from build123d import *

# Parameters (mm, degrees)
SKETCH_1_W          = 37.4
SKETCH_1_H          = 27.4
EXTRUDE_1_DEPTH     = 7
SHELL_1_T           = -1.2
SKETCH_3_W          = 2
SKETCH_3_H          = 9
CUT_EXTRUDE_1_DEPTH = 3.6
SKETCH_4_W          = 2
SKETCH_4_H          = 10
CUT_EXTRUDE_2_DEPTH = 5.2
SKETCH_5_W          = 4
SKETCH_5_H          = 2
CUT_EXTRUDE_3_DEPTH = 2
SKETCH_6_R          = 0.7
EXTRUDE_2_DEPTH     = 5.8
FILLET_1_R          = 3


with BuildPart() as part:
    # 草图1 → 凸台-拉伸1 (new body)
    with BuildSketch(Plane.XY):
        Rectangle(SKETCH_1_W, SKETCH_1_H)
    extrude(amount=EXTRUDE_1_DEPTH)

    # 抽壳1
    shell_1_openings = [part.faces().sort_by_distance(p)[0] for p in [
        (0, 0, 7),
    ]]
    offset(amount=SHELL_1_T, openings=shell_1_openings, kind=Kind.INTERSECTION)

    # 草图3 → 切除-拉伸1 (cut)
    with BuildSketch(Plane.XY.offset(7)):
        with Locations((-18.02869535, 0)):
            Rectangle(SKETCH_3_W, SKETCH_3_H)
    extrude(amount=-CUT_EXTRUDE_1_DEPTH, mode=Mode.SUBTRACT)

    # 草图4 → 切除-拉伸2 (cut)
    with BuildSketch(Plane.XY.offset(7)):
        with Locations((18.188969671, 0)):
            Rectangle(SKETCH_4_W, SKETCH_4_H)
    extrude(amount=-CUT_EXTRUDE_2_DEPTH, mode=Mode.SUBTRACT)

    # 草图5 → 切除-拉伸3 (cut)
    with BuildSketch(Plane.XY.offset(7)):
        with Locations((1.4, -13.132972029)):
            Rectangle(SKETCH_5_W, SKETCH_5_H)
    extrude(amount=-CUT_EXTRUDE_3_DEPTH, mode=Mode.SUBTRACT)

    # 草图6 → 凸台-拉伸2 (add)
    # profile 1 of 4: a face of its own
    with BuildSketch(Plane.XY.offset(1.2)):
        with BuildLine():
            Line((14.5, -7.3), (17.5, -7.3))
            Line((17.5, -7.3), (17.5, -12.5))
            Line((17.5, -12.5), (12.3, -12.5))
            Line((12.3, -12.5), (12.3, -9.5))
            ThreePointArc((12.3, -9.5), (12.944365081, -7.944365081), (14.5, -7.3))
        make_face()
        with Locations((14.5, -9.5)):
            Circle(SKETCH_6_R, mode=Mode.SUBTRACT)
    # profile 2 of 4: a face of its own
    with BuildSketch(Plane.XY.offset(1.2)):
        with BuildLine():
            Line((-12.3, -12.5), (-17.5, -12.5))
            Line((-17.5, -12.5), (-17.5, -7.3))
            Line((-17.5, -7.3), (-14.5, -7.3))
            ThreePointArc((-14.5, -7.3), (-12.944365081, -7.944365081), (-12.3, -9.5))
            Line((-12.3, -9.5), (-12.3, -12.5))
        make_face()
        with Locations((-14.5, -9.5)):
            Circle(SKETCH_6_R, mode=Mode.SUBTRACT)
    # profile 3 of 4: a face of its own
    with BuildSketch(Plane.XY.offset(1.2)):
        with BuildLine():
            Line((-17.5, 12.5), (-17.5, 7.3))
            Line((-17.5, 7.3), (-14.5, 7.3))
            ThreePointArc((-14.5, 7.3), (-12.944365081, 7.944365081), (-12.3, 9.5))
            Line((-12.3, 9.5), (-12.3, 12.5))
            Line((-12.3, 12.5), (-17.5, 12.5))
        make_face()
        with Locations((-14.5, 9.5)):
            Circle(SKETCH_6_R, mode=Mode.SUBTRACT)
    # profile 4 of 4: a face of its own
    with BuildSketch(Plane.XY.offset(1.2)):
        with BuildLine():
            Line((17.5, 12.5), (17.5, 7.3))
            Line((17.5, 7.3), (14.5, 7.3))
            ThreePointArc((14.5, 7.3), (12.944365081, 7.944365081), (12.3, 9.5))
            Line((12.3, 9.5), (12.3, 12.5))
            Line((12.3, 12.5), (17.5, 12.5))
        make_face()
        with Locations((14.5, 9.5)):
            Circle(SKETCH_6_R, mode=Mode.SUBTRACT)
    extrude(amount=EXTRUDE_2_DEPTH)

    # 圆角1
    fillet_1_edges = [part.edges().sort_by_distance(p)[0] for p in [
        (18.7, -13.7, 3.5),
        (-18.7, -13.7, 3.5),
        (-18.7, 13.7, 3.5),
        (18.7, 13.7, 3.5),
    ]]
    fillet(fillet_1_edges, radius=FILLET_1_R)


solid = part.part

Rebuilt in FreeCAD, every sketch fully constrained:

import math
import FreeCAD as App
import Part
import Sketcher


def edges_at(feature, points):
    """Names of the edges that pass closest to the given points."""
    edges = feature.Shape.Edges
    near = lambda p: min(range(len(edges)), key=lambda i: edges[i].distToShape(Part.Vertex(*p))[0])
    return sorted({f"Edge{near(p) + 1}" for p in points})


def faces_at(feature, points):
    """Names of the faces that lie closest to the given points."""
    faces = feature.Shape.Faces
    near = lambda p: min(range(len(faces)), key=lambda i: faces[i].distToShape(Part.Vertex(*p))[0])
    return sorted({f"Face{near(p) + 1}" for p in points})

doc = App.newDocument("Part")
body = doc.addObject("PartDesign::Body", "Body")

# Sketch on XY plane
sketch1 = body.newObject("Sketcher::SketchObject", "Sketch")
sketch1.AttachmentSupport = (doc.getObject("XY_Plane"), [""])
sketch1.MapMode = "FlatFace"
sketch1.addGeometry([
    Part.LineSegment(App.Vector(-19, 14, 0), App.Vector(-19, -14, 0)),
    Part.LineSegment(App.Vector(-19, -14, 0), App.Vector(19, -14, 0)),
    Part.LineSegment(App.Vector(19, -14, 0), App.Vector(19, 14, 0)),
    Part.LineSegment(App.Vector(19, 14, 0), App.Vector(-19, 14, 0)),
], False)
sketch1.addConstraint([
    Sketcher.Constraint("Coincident", 0, 2, 1, 1),
    Sketcher.Constraint("Coincident", 1, 2, 2, 1),
    Sketcher.Constraint("Coincident", 2, 2, 3, 1),
    Sketcher.Constraint("Coincident", 3, 2, 0, 1),
    Sketcher.Constraint("Vertical", 0),
    Sketcher.Constraint("Horizontal", 1),
    Sketcher.Constraint("Vertical", 2),
    Sketcher.Constraint("Horizontal", 3),
    Sketcher.Constraint("Symmetric", 0, 2, 2, 2, -1, 1),
    Sketcher.Constraint("DistanceX", 1, 1, 1, 2, 37.4),
    Sketcher.Constraint("DistanceY", 0, 2, 0, 1, 27.4),
])
pad1 = body.newObject("PartDesign::Pad", "Pad")
pad1.Profile = sketch1
pad1.Length = 7
doc.recompute()

thickness = body.newObject("PartDesign::Thickness", "Thickness")
thickness.Base = (pad1, faces_at(pad1, [(0, 0, 7)]))
thickness.Value = 1.2
thickness.Reversed = True
thickness.Join = "Intersection"

# Sketch on XY plane
sketch2 = body.newObject("Sketcher::SketchObject", "Sketch001")
sketch2.AttachmentSupport = (doc.getObject("XY_Plane"), [""])
sketch2.MapMode = "FlatFace"
sketch2.AttachmentOffset = App.Placement(App.Vector(0, 0, 7), App.Rotation())
sketch2.addGeometry([
    Part.LineSegment(App.Vector(-19, 4.5, 0), App.Vector(-19, -4.5, 0)),
    Part.LineSegment(App.Vector(-19, -4.5, 0), App.Vector(-17, -4.5, 0)),
    Part.LineSegment(App.Vector(-17, -4.5, 0), App.Vector(-17, 4.5, 0)),
    Part.LineSegment(App.Vector(-17, 4.5, 0), App.Vector(-19, 4.5, 0)),
], False)
sketch2.addConstraint([
    Sketcher.Constraint("Coincident", 0, 2, 1, 1),
    Sketcher.Constraint("Coincident", 1, 2, 2, 1),
    Sketcher.Constraint("Coincident", 2, 2, 3, 1),
    Sketcher.Constraint("Coincident", 3, 2, 0, 1),
    Sketcher.Constraint("Vertical", 0),
    Sketcher.Constraint("Horizontal", 1),
    Sketcher.Constraint("Vertical", 2),
    Sketcher.Constraint("Horizontal", 3),
    Sketcher.Constraint("DistanceX", 1, 1, 1, 2, 2.0),
    Sketcher.Constraint("DistanceY", 0, 2, 0, 1, 9.0),
    Sketcher.Constraint("DistanceY", 0, 2, -1, 1, 4.5),
    Sketcher.Constraint("DistanceX", 0, 2, -1, 1, 19.028695),
])
pocket1 = body.newObject("PartDesign::Pocket", "Pocket")
pocket1.Profile = sketch2
pocket1.Length = 3.6

# Sketch on XY plane
sketch3 = body.newObject("Sketcher::SketchObject", "Sketch002")
sketch3.AttachmentSupport = (doc.getObject("XY_Plane"), [""])
sketch3.MapMode = "FlatFace"
sketch3.AttachmentOffset = App.Placement(App.Vector(0, 0, 7), App.Rotation())
sketch3.addGeometry([
    Part.LineSegment(App.Vector(17.2, 5, 0), App.Vector(17.2, -5, 0)),
    Part.LineSegment(App.Vector(17.2, -5, 0), App.Vector(19.2, -5, 0)),
    Part.LineSegment(App.Vector(19.2, -5, 0), App.Vector(19.2, 5, 0)),
    Part.LineSegment(App.Vector(19.2, 5, 0), App.Vector(17.2, 5, 0)),
], False)
sketch3.addConstraint([
    Sketcher.Constraint("Coincident", 0, 2, 1, 1),
    Sketcher.Constraint("Coincident", 1, 2, 2, 1),
    Sketcher.Constraint("Coincident", 2, 2, 3, 1),
    Sketcher.Constraint("Coincident", 3, 2, 0, 1),
    Sketcher.Constraint("Vertical", 0),
    Sketcher.Constraint("Horizontal", 1),
    Sketcher.Constraint("Vertical", 2),
    Sketcher.Constraint("Horizontal", 3),
    Sketcher.Constraint("DistanceX", 1, 1, 1, 2, 2.0),
    Sketcher.Constraint("DistanceY", 0, 2, 0, 1, 10.0),
    Sketcher.Constraint("DistanceY", 0, 2, -1, 1, 5.0),
    Sketcher.Constraint("DistanceX", -1, 1, 0, 2, 17.18897),
])
pocket2 = body.newObject("PartDesign::Pocket", "Pocket001")
pocket2.Profile = sketch3
pocket2.Length = 5.2

# Sketch on XY plane
sketch4 = body.newObject("Sketcher::SketchObject", "Sketch003")
sketch4.AttachmentSupport = (doc.getObject("XY_Plane"), [""])
sketch4.MapMode = "FlatFace"
sketch4.AttachmentOffset = App.Placement(App.Vector(0, 0, 7), App.Rotation())
sketch4.addGeometry([
    Part.LineSegment(App.Vector(-0.6, -12.1, 0), App.Vector(-0.6, -14.1, 0)),
    Part.LineSegment(App.Vector(-0.6, -14.1, 0), App.Vector(3.4, -14.1, 0)),
    Part.LineSegment(App.Vector(3.4, -14.1, 0), App.Vector(3.4, -12.1, 0)),
    Part.LineSegment(App.Vector(3.4, -12.1, 0), App.Vector(-0.6, -12.1, 0)),
], False)
sketch4.addConstraint([
    Sketcher.Constraint("Coincident", 0, 2, 1, 1),
    Sketcher.Constraint("Coincident", 1, 2, 2, 1),
    Sketcher.Constraint("Coincident", 2, 2, 3, 1),
    Sketcher.Constraint("Coincident", 3, 2, 0, 1),
    Sketcher.Constraint("Vertical", 0),
    Sketcher.Constraint("Horizontal", 1),
    Sketcher.Constraint("Vertical", 2),
    Sketcher.Constraint("Horizontal", 3),
    Sketcher.Constraint("DistanceX", 1, 1, 1, 2, 4.0),
    Sketcher.Constraint("DistanceY", 0, 2, 0, 1, 2.0),
    Sketcher.Constraint("DistanceX", 0, 2, -1, 1, 0.6),
    Sketcher.Constraint("DistanceY", 0, 2, -1, 1, 14.132972),
])
pocket3 = body.newObject("PartDesign::Pocket", "Pocket002")
pocket3.Profile = sketch4
pocket3.Length = 2

# Sketch on XY plane
sketch5 = body.newObject("Sketcher::SketchObject", "Sketch004")
sketch5.AttachmentSupport = (doc.getObject("XY_Plane"), [""])
sketch5.MapMode = "FlatFace"
sketch5.AttachmentOffset = App.Placement(App.Vector(0, 0, 1.2), App.Rotation())
sketch5.addGeometry([
    Part.LineSegment(App.Vector(17.5, -7.3, 0), App.Vector(14.5, -7.3, 0)),  # 0
    Part.ArcOfCircle(Part.Circle(App.Vector(14.5, -9.5, 0), App.Vector(0, 0, 1), 2.2), math.radians(90), math.radians(180)),  # 1
    Part.LineSegment(App.Vector(12.3, -9.5, 0), App.Vector(12.3, -12.5, 0)),  # 2
    Part.LineSegment(App.Vector(12.3, -12.5, 0), App.Vector(17.5, -12.5, 0)),  # 3
    Part.LineSegment(App.Vector(17.5, -12.5, 0), App.Vector(17.5, -7.3, 0)),  # 4
    Part.Circle(App.Vector(14.5, -9.5, 0), App.Vector(0, 0, 1), 0.7),  # 5
    Part.LineSegment(App.Vector(-17.5, -12.5, 0), App.Vector(-12.3, -12.5, 0)),  # 6
    Part.LineSegment(App.Vector(-12.3, -12.5, 0), App.Vector(-12.3, -9.5, 0)),  # 7
    Part.ArcOfCircle(Part.Circle(App.Vector(-14.5, -9.5, 0), App.Vector(0, 0, 1), 2.2), math.radians(0), math.radians(90)),  # 8
    Part.LineSegment(App.Vector(-14.5, -7.3, 0), App.Vector(-17.5, -7.3, 0)),  # 9
    Part.LineSegment(App.Vector(-17.5, -7.3, 0), App.Vector(-17.5, -12.5, 0)),  # 10
    Part.Circle(App.Vector(-14.5, -9.5, 0), App.Vector(0, 0, 1), 0.7),  # 11
    Part.LineSegment(App.Vector(-17.5, 12.5, 0), App.Vector(-17.5, 7.3, 0)),  # 12
    Part.LineSegment(App.Vector(-17.5, 7.3, 0), App.Vector(-14.5, 7.3, 0)),  # 13
    Part.ArcOfCircle(Part.Circle(App.Vector(-14.5, 9.5, 0), App.Vector(0, 0, 1), 2.2), math.radians(-90), math.radians(0)),  # 14
    Part.LineSegment(App.Vector(-12.3, 9.5, 0), App.Vector(-12.3, 12.5, 0)),  # 15
    Part.LineSegment(App.Vector(-12.3, 12.5, 0), App.Vector(-17.5, 12.5, 0)),  # 16
    Part.Circle(App.Vector(-14.5, 9.5, 0), App.Vector(0, 0, 1), 0.7),  # 17
    Part.LineSegment(App.Vector(17.5, 7.3, 0), App.Vector(17.5, 12.5, 0)),  # 18
    Part.LineSegment(App.Vector(17.5, 12.5, 0), App.Vector(12.3, 12.5, 0)),  # 19
    Part.LineSegment(App.Vector(12.3, 12.5, 0), App.Vector(12.3, 9.5, 0)),  # 20
    Part.ArcOfCircle(Part.Circle(App.Vector(14.5, 9.5, 0), App.Vector(0, 0, 1), 2.2), math.radians(180), math.radians(270)),  # 21
    Part.LineSegment(App.Vector(14.5, 7.3, 0), App.Vector(17.5, 7.3, 0)),  # 22
    Part.Circle(App.Vector(14.5, 9.5, 0), App.Vector(0, 0, 1), 0.7),  # 23
], False)
sketch5.addConstraint([
    Sketcher.Constraint("Tangent", 0, 2, 1, 1),
    Sketcher.Constraint("Tangent", 1, 2, 2, 1),
    Sketcher.Constraint("Coincident", 2, 2, 3, 1),
    Sketcher.Constraint("Coincident", 3, 2, 4, 1),
    Sketcher.Constraint("Coincident", 4, 2, 0, 1),
    Sketcher.Constraint("Coincident", 6, 2, 7, 1),
    Sketcher.Constraint("Tangent", 7, 2, 8, 1),
    Sketcher.Constraint("Tangent", 8, 2, 9, 1),
    Sketcher.Constraint("Coincident", 9, 2, 10, 1),
    Sketcher.Constraint("Coincident", 10, 2, 6, 1),
    Sketcher.Constraint("Coincident", 12, 2, 13, 1),
    Sketcher.Constraint("Tangent", 13, 2, 14, 1),
    Sketcher.Constraint("Tangent", 14, 2, 15, 1),
    Sketcher.Constraint("Coincident", 15, 2, 16, 1),
    Sketcher.Constraint("Coincident", 16, 2, 12, 1),
    Sketcher.Constraint("Coincident", 18, 2, 19, 1),
    Sketcher.Constraint("Coincident", 19, 2, 20, 1),
    Sketcher.Constraint("Tangent", 20, 2, 21, 1),
    Sketcher.Constraint("Tangent", 21, 2, 22, 1),
    Sketcher.Constraint("Coincident", 22, 2, 18, 1),
    Sketcher.Constraint("Horizontal", 0),
    Sketcher.Constraint("Vertical", 2),
    Sketcher.Constraint("Horizontal", 3),
    Sketcher.Constraint("Vertical", 4),
    Sketcher.Constraint("Horizontal", 6),
    Sketcher.Constraint("Vertical", 7),
    Sketcher.Constraint("Horizontal", 9),
    Sketcher.Constraint("Vertical", 10),
    Sketcher.Constraint("Vertical", 12),
    Sketcher.Constraint("Horizontal", 13),
    Sketcher.Constraint("Vertical", 15),
    Sketcher.Constraint("Horizontal", 16),
    Sketcher.Constraint("Vertical", 18),
    Sketcher.Constraint("Horizontal", 19),
    Sketcher.Constraint("Vertical", 20),
    Sketcher.Constraint("Horizontal", 22),
    Sketcher.Constraint("Coincident", 5, 3, 1, 3),
    Sketcher.Constraint("Coincident", 11, 3, 8, 3),
    Sketcher.Constraint("Coincident", 17, 3, 14, 3),
    Sketcher.Constraint("Coincident", 23, 3, 21, 3),
    Sketcher.Constraint("Equal", 1, 8),
    Sketcher.Constraint("Equal", 5, 11),
    Sketcher.Constraint("Equal", 8, 14),
    Sketcher.Constraint("Equal", 11, 17),
    Sketcher.Constraint("Equal", 14, 21),
    Sketcher.Constraint("Equal", 17, 23),
    Sketcher.Constraint("Symmetric", 1, 3, 14, 3, -1, 1),
    Sketcher.Constraint("Symmetric", 8, 3, 21, 3, -1, 1),
    Sketcher.Constraint("Symmetric", 3, 2, 16, 2, -1, 1),
    Sketcher.Constraint("Symmetric", 10, 2, 18, 2, -1, 1),
    Sketcher.Constraint("Symmetric", 1, 3, 8, 3, -2),
    Sketcher.Constraint("Symmetric", 3, 2, 10, 2, -2),
    Sketcher.Constraint("Equal", 22, 2),
    Sketcher.Constraint("Diameter", 5, 1.4),
    Sketcher.Constraint("Radius", 1, 2.2),
    Sketcher.Constraint("DistanceX", 0, 2, 0, 1, 3.0),
    Sketcher.Constraint("DistanceX", 8, 3, 1, 3, 29.0),
    Sketcher.Constraint("DistanceY", 8, 3, 14, 3, 19.0),
])
pad2 = body.newObject("PartDesign::Pad", "Pad001")
pad2.Profile = sketch5
pad2.Length = 5.8
doc.recompute()

fillet = body.newObject("PartDesign::Fillet", "Fillet")
fillet.Base = (pad2, edges_at(pad2, [
    (18.7, -13.7, 3.5),
    (-18.7, -13.7, 3.5),
    (-18.7, 13.7, 3.5),
    (18.7, 13.7, 3.5),
]))
fillet.Radius = 3

doc.recompute()
